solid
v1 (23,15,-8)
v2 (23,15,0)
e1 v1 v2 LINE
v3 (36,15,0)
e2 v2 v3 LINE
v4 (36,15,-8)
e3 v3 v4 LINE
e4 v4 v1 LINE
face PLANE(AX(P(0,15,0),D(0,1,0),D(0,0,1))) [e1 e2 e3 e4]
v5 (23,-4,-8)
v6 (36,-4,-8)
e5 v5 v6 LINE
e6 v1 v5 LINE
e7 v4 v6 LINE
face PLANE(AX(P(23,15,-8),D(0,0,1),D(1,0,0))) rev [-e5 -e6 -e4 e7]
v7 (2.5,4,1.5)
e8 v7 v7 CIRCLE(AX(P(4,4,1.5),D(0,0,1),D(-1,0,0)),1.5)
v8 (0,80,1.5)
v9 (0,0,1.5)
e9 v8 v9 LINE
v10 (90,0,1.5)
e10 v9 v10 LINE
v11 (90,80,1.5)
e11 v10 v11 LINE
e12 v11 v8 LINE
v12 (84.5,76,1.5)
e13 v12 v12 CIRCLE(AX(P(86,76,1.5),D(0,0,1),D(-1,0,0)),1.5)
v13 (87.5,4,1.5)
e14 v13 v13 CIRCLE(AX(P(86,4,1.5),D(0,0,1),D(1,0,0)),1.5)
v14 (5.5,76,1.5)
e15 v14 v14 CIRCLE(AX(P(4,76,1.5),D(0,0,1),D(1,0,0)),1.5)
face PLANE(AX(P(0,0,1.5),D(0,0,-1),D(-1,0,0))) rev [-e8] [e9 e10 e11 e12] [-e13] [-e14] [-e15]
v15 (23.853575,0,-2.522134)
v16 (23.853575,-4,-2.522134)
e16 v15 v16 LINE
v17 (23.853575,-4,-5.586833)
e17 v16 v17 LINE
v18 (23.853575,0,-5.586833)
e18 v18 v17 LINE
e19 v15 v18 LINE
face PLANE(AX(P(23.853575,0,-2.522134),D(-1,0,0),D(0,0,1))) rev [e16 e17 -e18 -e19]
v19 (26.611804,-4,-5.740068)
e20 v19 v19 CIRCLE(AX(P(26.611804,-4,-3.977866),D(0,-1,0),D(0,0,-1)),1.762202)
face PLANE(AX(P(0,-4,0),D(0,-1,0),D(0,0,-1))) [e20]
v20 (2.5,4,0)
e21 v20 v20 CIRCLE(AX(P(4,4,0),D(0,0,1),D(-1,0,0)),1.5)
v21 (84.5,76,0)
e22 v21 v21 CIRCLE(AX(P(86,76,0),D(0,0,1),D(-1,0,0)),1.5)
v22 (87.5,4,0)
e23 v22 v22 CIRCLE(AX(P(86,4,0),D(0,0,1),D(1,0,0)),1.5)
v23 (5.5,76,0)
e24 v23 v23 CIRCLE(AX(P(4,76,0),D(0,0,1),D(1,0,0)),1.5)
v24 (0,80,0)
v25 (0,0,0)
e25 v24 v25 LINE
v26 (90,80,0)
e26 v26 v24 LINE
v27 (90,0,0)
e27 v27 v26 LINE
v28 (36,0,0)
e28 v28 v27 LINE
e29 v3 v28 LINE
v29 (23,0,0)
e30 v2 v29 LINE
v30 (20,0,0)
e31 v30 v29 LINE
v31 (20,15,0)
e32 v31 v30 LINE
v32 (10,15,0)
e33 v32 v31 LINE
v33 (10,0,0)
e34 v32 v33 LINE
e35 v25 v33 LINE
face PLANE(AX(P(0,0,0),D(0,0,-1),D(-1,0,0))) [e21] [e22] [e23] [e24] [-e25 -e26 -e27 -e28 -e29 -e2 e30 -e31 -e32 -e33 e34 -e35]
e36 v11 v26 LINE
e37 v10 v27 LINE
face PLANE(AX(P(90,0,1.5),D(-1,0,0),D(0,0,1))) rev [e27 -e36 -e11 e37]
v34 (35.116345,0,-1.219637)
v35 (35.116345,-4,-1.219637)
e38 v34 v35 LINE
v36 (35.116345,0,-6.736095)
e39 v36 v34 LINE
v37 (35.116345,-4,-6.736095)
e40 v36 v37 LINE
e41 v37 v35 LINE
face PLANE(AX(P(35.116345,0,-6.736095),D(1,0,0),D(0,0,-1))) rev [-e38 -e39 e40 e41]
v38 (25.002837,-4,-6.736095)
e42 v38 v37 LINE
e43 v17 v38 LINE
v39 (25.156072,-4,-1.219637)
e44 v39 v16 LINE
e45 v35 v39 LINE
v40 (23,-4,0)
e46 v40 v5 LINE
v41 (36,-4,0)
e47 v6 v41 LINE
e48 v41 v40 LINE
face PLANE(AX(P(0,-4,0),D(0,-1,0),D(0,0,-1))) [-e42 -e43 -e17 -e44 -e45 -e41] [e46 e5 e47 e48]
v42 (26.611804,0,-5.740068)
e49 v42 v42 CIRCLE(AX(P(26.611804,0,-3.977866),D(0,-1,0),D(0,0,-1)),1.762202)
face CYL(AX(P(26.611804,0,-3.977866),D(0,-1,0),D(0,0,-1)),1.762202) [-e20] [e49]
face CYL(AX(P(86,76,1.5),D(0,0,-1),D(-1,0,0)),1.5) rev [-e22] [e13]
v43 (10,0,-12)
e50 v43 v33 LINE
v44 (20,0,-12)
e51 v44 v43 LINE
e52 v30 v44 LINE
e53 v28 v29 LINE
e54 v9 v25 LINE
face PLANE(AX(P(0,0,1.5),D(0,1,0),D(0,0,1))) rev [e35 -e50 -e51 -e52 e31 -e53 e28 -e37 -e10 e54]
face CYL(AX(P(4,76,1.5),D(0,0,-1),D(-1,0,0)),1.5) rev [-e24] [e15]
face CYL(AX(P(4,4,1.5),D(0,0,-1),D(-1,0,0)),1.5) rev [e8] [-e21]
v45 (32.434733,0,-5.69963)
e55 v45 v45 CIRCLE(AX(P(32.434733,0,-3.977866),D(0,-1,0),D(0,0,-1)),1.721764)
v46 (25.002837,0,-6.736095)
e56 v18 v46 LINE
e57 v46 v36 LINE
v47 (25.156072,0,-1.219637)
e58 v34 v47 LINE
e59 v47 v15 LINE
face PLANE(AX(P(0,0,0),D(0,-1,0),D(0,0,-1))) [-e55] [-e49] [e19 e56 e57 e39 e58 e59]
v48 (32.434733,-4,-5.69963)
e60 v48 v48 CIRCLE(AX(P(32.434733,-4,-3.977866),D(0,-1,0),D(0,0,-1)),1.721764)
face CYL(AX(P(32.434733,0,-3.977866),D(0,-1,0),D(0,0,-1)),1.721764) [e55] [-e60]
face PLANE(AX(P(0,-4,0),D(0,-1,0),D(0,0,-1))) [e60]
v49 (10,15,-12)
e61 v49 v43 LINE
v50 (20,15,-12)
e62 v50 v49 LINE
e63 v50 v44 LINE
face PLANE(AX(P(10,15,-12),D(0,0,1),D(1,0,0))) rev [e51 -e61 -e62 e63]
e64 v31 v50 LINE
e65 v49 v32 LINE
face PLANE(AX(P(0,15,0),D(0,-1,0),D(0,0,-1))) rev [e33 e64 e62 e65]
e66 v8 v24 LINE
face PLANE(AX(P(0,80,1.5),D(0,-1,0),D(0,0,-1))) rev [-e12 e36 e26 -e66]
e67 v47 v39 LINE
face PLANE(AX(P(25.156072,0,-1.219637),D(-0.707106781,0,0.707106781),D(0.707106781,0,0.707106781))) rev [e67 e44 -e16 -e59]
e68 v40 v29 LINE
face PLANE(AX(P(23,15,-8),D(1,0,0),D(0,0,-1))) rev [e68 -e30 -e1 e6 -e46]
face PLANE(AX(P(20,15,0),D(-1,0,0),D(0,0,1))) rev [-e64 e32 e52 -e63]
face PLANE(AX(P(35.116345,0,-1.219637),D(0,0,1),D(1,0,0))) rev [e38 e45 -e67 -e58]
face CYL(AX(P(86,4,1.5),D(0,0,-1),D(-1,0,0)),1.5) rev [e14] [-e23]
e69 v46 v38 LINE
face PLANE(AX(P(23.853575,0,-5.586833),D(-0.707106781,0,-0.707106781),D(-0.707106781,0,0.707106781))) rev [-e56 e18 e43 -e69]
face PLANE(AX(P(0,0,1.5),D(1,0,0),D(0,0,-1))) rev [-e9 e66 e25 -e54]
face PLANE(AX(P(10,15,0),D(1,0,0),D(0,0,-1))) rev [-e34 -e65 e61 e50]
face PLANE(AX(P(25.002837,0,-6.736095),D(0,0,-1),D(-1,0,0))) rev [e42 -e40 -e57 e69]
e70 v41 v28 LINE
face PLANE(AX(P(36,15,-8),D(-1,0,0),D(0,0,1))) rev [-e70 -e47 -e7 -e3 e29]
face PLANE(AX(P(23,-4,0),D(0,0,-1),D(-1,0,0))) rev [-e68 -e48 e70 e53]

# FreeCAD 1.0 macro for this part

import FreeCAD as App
import Part
import Sketcher
Q = App.Units.Quantity

doc = App.newDocument("Part")
body = doc.addObject("PartDesign::Body", "Body")

# Sketch on XY plane
sketch1 = body.newObject("Sketcher::SketchObject", "Sketch")
sketch1.AttachmentSupport = (doc.getObject("XY_Plane"), [""])
sketch1.MapMode = "FlatFace"
sketch1.addGeometry([
    Part.LineSegment(App.Vector(0, 80, 0), App.Vector(0, 0, 0)),  # 0
    Part.LineSegment(App.Vector(0, 0, 0), App.Vector(90, 0, 0)),  # 1
    Part.LineSegment(App.Vector(90, 0, 0), App.Vector(90, 80, 0)),  # 2
    Part.LineSegment(App.Vector(90, 80, 0), App.Vector(0, 80, 0)),  # 3
    Part.Circle(App.Vector(4, 4, 0), App.Vector(0, 0, 1), 1.5),  # 4
    Part.Circle(App.Vector(86, 4, 0), App.Vector(0, 0, 1), 1.5),  # 5
    Part.Circle(App.Vector(4, 76, 0), App.Vector(0, 0, 1), 1.5),  # 6
    Part.Circle(App.Vector(86, 76, 0), App.Vector(0, 0, 1), 1.5),  # 7
], False)
sketch1.addConstraint([
    Sketcher.Constraint("Coincident", 0, 2, 1, 1),
    Sketcher.Constraint("Coincident", 1, 2, 2, 1),
    Sketcher.Constraint("Coincident", 2, 2, 3, 1),
    Sketcher.Constraint("Coincident", 3, 2, 0, 1),
    Sketcher.Constraint("Vertical", 0),
    Sketcher.Constraint("Horizontal", 1),
    Sketcher.Constraint("Vertical", 2),
    Sketcher.Constraint("Horizontal", 3),
    Sketcher.Constraint("Coincident", 0, 2, -1, 1),
    Sketcher.Constraint("Equal", 4, 5),
    Sketcher.Constraint("Equal", 5, 6),
    Sketcher.Constraint("Equal", 6, 7),
    Sketcher.Constraint("Horizontal", 4, 3, 5, 3),
    Sketcher.Constraint("Horizontal", 6, 3, 7, 3),
    Sketcher.Constraint("Vertical", 4, 3, 6, 3),
    Sketcher.Constraint("Vertical", 5, 3, 7, 3),
    Sketcher.Constraint("Diameter", 4, 3.0),
    Sketcher.Constraint("DistanceX", 1, 1, 1, 2, 90.0),
    Sketcher.Constraint("DistanceY", 0, 2, 0, 1, 80.0),
    Sketcher.Constraint("DistanceX", -1, 1, 4, 3, 4.0),
    Sketcher.Constraint("DistanceY", -1, 1, 4, 3, 4.0),
    Sketcher.Constraint("DistanceX", -1, 1, 5, 3, 86.0),
    Sketcher.Constraint("DistanceY", -1, 1, 6, 3, 76.0),
])
pad1 = body.newObject("PartDesign::Pad", "Pad")
pad1.Profile = sketch1
pad1.Length = 1.5
body2 = doc.addObject("PartDesign::Body", "Body001")

# Sketch on XZ plane
sketch2 = body2.newObject("Sketcher::SketchObject", "Sketch001")
sketch2.AttachmentSupport = (doc.getObject("XZ_Plane001"), [""])
sketch2.MapMode = "FlatFace"
sketch2.addGeometry([
    Part.LineSegment(App.Vector(23, 0, 0), App.Vector(23, -8, 0)),
    Part.LineSegment(App.Vector(23, -8, 0), App.Vector(36, -8, 0)),
    Part.LineSegment(App.Vector(36, -8, 0), App.Vector(36, 0, 0)),
    Part.LineSegment(App.Vector(36, 0, 0), App.Vector(23, 0, 0)),
], False)
sketch2.addConstraint([
    Sketcher.Constraint("Coincident", 0, 2, 1, 1),
    Sketcher.Constraint("Coincident", 1, 2, 2, 1),
    Sketcher.Constraint("Coincident", 2, 2, 3, 1),
    Sketcher.Constraint("Coincident", 3, 2, 0, 1),
    Sketcher.Constraint("Vertical", 0),
    Sketcher.Constraint("Horizontal", 1),
    Sketcher.Constraint("Vertical", 2),
    Sketcher.Constraint("Horizontal", 3),
    Sketcher.Constraint("PointOnObject", 2, 2, -1),
    Sketcher.Constraint("DistanceX", 1, 1, 1, 2, 13.0),
    Sketcher.Constraint("DistanceY", 0, 2, 0, 1, 8.0),
    Sketcher.Constraint("DistanceX", -1, 1, 0, 2, 23.0),
])
pad2 = body2.newObject("PartDesign::Pad", "Pad001")
pad2.Profile = sketch2
pad2.Length = 4
body.AllowCompound = True
doc.recompute()

boolean = body.newObject("PartDesign::Boolean", "Boolean")
boolean.Type = "Fuse"
boolean.addObjects([body2])

# Sketch on XZ plane
sketch3 = body.newObject("Sketcher::SketchObject", "Sketch002")
sketch3.AttachmentSupport = (doc.getObject("XZ_Plane"), [""])
sketch3.MapMode = "FlatFace"
sketch3.addGeometry([
    Part.LineSegment(App.Vector(23, -8, 0), App.Vector(23, 0, 0)),  # 0
    Part.LineSegment(App.Vector(23, 0, 0), App.Vector(36, 0, 0)),  # 1
    Part.LineSegment(App.Vector(36, 0, 0), App.Vector(36, -8, 0)),  # 2
    Part.LineSegment(App.Vector(36, -8, 0), App.Vector(23, -8, 0)),  # 3
    Part.LineSegment(App.Vector(10, -12, 0), App.Vector(10, 0, 0)),  # 4
    Part.LineSegment(App.Vector(10, 0, 0), App.Vector(20, 0, 0)),  # 5
    Part.LineSegment(App.Vector(20, 0, 0), App.Vector(20, -12, 0)),  # 6
    Part.LineSegment(App.Vector(20, -12, 0), App.Vector(10, -12, 0)),  # 7
], False)
sketch3.addConstraint([
    Sketcher.Constraint("Coincident", 0, 2, 1, 1),
    Sketcher.Constraint("Coincident", 1, 2, 2, 1),
    Sketcher.Constraint("Coincident", 2, 2, 3, 1),
    Sketcher.Constraint("Coincident", 3, 2, 0, 1),
    Sketcher.Constraint("Coincident", 4, 2, 5, 1),
    Sketcher.Constraint("Coincident", 5, 2, 6, 1),
    Sketcher.Constraint("Coincident", 6, 2, 7, 1),
    Sketcher.Constraint("Coincident", 7, 2, 4, 1),
    Sketcher.Constraint("Vertical", 0),
    Sketcher.Constraint("Horizontal", 1),
    Sketcher.Constraint("Vertical", 2),
    Sketcher.Constraint("Horizontal", 3),
    Sketcher.Constraint("Vertical", 4),
    Sketcher.Constraint("Horizontal", 5),
    Sketcher.Constraint("Vertical", 6),
    Sketcher.Constraint("Horizontal", 7),
    Sketcher.Constraint("PointOnObject", 0, 2, -1),
    Sketcher.Constraint("PointOnObject", 4, 2, -1),
    Sketcher.Constraint("DistanceX", 1, 1, 1, 2, 13.0),
    Sketcher.Constraint("DistanceX", 5, 1, 5, 2, 10.0),
    Sketcher.Constraint("DistanceY", 0, 1, 0, 2, 8.0),
    Sketcher.Constraint("DistanceY", 4, 1, 4, 2, 12.0),
    Sketcher.Constraint("DistanceX", -1, 1, 0, 2, 23.0),
    Sketcher.Constraint("DistanceX", -1, 1, 4, 2, 10.0),
])
pad3 = body.newObject("PartDesign::Pad", "Pad002")
pad3.Profile = sketch3
pad3.Length = 15
pad3.Reversed = True

# Sketch on XZ plane
sketch4 = body.newObject("Sketcher::SketchObject", "Sketch003")
sketch4.AttachmentSupport = (doc.getObject("XZ_Plane"), [""])
sketch4.MapMode = "FlatFace"
sketch4.AttachmentOffset = App.Placement(App.Vector(0, 0, 4), App.Rotation())
sketch4.addGeometry([
    Part.LineSegment(App.Vector(25.2, -1.2, 0), App.Vector(23.9, -2.5, 0)),  # 0
    Part.LineSegment(App.Vector(23.9, -2.5, 0), App.Vector(23.9, -5.6, 0)),  # 1
    Part.LineSegment(App.Vector(23.9, -5.6, 0), App.Vector(25, -6.7, 0)),  # 2
    Part.LineSegment(App.Vector(25, -6.7, 0), App.Vector(35.1, -6.7, 0)),  # 3
    Part.LineSegment(App.Vector(35.1, -6.7, 0), App.Vector(35.1, -1.2, 0)),  # 4
    Part.LineSegment(App.Vector(35.1, -1.2, 0), App.Vector(25.2, -1.2, 0)),  # 5
    Part.Circle(App.Vector(26.6, -4, 0), App.Vector(0, 0, 1), 1.8),  # 6
    Part.Circle(App.Vector(32.4, -4, 0), App.Vector(0, 0, 1), 1.7),  # 7
], False)
sketch4.addConstraint([
    Sketcher.Constraint("Coincident", 0, 2, 1, 1),
    Sketcher.Constraint("Coincident", 1, 2, 2, 1),
    Sketcher.Constraint("Coincident", 2, 2, 3, 1),
    Sketcher.Constraint("Coincident", 3, 2, 4, 1),
    Sketcher.Constraint("Coincident", 4, 2, 5, 1),
    Sketcher.Constraint("Coincident", 5, 2, 0, 1),
    Sketcher.Constraint("Vertical", 1),
    Sketcher.Constraint("Horizontal", 3),
    Sketcher.Constraint("Vertical", 4),
    Sketcher.Constraint("Horizontal", 5),
    Sketcher.Constraint("Perpendicular", 0, 2),
    Sketcher.Constraint("Horizontal", 6, 3, 7, 3),
    Sketcher.Constraint("Angle", 0, Q("-135 deg")),
    Sketcher.Constraint("Diameter", 6, 3.524404),
    Sketcher.Constraint("Diameter", 7, 3.443528),
    Sketcher.Constraint("DistanceY", 1, 2, 1, 1, 3.064699),
    Sketcher.Constraint("DistanceY", 4, 1, 4, 2, 5.516459),
    Sketcher.Constraint("Distance", 0, 1.842009),
    Sketcher.Constraint("DistanceX", 3, 1, 3, 2, 10.113508),
    Sketcher.Constraint("DistanceX", 6, 3, 7, 3, 5.822929),
    Sketcher.Constraint("DistanceX", 0, 2, 6, 3, 2.758229),
    Sketcher.Constraint("DistanceY", 2, 2, 6, 3, 2.758229),
    Sketcher.Constraint("DistanceX", -1, 1, 6, 3, 26.611804),
    Sketcher.Constraint("DistanceY", 6, 3, -1, 1, 3.977866),
])
pocket1 = body.newObject("PartDesign::Pocket", "Pocket")
pocket1.Profile = sketch4
pocket1.Length = 4

doc.recompute()
